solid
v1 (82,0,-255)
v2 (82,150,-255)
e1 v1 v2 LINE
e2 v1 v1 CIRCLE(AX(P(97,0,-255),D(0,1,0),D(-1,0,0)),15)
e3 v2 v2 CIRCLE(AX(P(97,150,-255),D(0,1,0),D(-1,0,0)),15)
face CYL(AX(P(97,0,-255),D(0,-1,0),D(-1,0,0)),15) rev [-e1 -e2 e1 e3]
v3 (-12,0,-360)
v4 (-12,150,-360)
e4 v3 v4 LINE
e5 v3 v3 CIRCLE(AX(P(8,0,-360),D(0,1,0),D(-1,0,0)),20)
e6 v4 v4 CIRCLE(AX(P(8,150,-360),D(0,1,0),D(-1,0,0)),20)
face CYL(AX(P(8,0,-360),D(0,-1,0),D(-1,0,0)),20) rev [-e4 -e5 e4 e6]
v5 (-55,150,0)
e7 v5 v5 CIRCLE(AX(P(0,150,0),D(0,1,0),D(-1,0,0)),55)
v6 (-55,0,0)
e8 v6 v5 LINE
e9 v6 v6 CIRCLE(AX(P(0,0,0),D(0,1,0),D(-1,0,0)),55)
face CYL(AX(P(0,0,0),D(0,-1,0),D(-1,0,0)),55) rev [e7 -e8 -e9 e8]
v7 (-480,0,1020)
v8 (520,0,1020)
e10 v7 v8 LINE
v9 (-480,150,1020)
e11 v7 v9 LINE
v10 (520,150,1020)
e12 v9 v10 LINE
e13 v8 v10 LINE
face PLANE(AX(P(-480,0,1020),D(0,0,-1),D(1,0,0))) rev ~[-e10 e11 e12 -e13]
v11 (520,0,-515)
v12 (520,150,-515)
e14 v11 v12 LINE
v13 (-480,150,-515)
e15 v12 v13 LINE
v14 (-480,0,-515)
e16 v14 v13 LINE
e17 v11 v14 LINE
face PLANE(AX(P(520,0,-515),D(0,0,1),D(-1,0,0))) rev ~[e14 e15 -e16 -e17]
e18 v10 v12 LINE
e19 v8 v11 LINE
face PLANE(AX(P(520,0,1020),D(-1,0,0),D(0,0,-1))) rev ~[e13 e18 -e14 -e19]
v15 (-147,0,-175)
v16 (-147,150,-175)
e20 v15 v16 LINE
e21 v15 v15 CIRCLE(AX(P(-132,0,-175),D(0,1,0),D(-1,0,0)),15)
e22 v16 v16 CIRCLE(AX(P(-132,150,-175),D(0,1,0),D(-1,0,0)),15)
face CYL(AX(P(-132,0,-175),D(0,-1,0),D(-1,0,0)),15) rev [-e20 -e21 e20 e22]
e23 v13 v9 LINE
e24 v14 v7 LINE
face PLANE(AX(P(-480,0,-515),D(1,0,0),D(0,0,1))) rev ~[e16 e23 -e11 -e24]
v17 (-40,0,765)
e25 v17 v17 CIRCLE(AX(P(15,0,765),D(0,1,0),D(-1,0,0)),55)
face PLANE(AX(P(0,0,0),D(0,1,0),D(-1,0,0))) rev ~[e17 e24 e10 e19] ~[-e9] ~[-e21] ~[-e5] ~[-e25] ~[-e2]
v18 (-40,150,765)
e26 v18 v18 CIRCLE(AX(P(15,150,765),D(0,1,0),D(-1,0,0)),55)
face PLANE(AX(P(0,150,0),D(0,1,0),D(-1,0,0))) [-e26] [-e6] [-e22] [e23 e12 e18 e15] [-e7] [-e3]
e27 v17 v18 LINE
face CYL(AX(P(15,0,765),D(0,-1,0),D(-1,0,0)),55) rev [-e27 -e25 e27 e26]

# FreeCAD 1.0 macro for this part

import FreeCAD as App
import Part
import Sketcher
Q = App.Units.Quantity


def add_polygon(sketch, points):
    """Adds a closed chain of lines whose ends are joined by coincident constraints."""
    first, n = sketch.GeometryCount, len(points)
    for a, b in zip(points, points[1:] + points[:1]):
        sketch.addGeometry(Part.LineSegment(App.Vector(*a, 0), App.Vector(*b, 0)), False)
    for i in range(n):
        sketch.addConstraint(Sketcher.Constraint("Coincident", first + i, 2, first + (i + 1) % n, 1))

doc = App.newDocument("Part")
body = doc.addObject("PartDesign::Body", "Body")

# Sketch on XZ plane
sketch1 = body.newObject("Sketcher::SketchObject", "Sketch")
sketch1.AttachmentSupport = (doc.getObject("XZ_Plane"), [""])
sketch1.MapMode = "FlatFace"
add_polygon(sketch1, [(-480, -515), (-480, 1020), (520, 1020), (520, -515)])  # lines 0-3
sketch1.addGeometry(Part.Circle(App.Vector(97, -255, 0), App.Vector(0, 0, 1), 15), False)  # 4
sketch1.addGeometry(Part.Circle(App.Vector(8, -360, 0), App.Vector(0, 0, 1), 20), False)  # 5
sketch1.addGeometry(Part.Circle(App.Vector(-132, -175, 0), App.Vector(0, 0, 1), 15), False)  # 6
sketch1.addGeometry(Part.Circle(App.Vector(0, 0, 0), App.Vector(0, 0, 1), 55), False)  # 7
sketch1.addGeometry(Part.Circle(App.Vector(15, 765, 0), App.Vector(0, 0, 1), 55), False)  # 8
sketch1.addConstraint([
    Sketcher.Constraint("Vertical", 0),
    Sketcher.Constraint("Horizontal", 1),
    Sketcher.Constraint("Vertical", 2),
    Sketcher.Constraint("Horizontal", 3),
    Sketcher.Constraint("Coincident", 7, 3, -1, 1),
    Sketcher.Constraint("Equal", 4, 6),
    Sketcher.Constraint("Equal", 7, 8),
    Sketcher.Constraint("Diameter", 4, Q("30 mm")),
    Sketcher.Constraint("Diameter", 5, Q("40 mm")),
    Sketcher.Constraint("Diameter", 7, Q("110 mm")),
    Sketcher.Constraint("DistanceY", 4, 3, -1, 1, Q("255 mm")),
    Sketcher.Constraint("DistanceY", -1, 1, 8, 3, Q("765 mm")),
    Sketcher.Constraint("DistanceX", 0, 2, -1, 1, Q("480 mm")),
    Sketcher.Constraint("DistanceY", -1, 1, 0, 2, Q("1020 mm")),
    Sketcher.Constraint("DistanceX", -1, 1, 1, 2, Q("520 mm")),
    Sketcher.Constraint("DistanceY", 2, 2, -1, 1, Q("515 mm")),
    Sketcher.Constraint("DistanceX", 8, 3, 1, 2, Q("505 mm")),
    Sketcher.Constraint("DistanceY", 2, 2, 5, 3, Q("155 mm")),
    Sketcher.Constraint("DistanceY", 2, 2, 6, 3, Q("340 mm")),
    Sketcher.Constraint("DistanceX", -1, 1, 4, 3, Q("97 mm")),
    Sketcher.Constraint("DistanceX", -1, 1, 5, 3, Q("8 mm")),
    Sketcher.Constraint("DistanceX", 6, 3, -1, 1, Q("132 mm")),
])
pad1 = body.newObject("PartDesign::Pad", "Pad")
pad1.Profile = sketch1
pad1.Length = 150
pad1.Reversed = True

doc.recompute()
